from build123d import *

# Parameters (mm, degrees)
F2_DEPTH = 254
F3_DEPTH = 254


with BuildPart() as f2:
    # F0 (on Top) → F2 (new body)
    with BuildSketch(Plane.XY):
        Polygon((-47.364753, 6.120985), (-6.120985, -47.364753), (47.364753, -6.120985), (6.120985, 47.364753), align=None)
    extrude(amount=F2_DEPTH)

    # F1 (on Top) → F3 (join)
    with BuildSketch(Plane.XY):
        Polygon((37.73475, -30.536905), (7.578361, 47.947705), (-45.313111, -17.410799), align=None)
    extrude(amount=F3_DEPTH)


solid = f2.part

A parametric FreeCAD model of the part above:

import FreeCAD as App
import Part
import Sketcher
Q = App.Units.Quantity

doc = App.newDocument("Part")
body = doc.addObject("PartDesign::Body", "Body")

# Sketch on XY plane
sketch1 = doc.addObject("Sketcher::SketchObject", "Sketch")
body.addObject(sketch1)
sketch1.AttachmentSupport = (doc.XY_Plane, [""])
sketch1.MapMode = "FlatFace"
sketch1.addGeometry(Part.LineSegment(App.Vector(-47, 6, 0), App.Vector(-6, -47, 0)), False)
sketch1.addGeometry(Part.LineSegment(App.Vector(-6, -47, 0), App.Vector(47, -6, 0)), False)
sketch1.addGeometry(Part.LineSegment(App.Vector(47, -6, 0), App.Vector(6, 47, 0)), False)
sketch1.addGeometry(Part.LineSegment(App.Vector(6, 47, 0), App.Vector(-47, 6, 0)), False)
sketch1.addConstraint(Sketcher.Constraint("Coincident", 0, 2, 1, 1))
sketch1.addConstraint(Sketcher.Constraint("Coincident", 1, 2, 2, 1))
sketch1.addConstraint(Sketcher.Constraint("Coincident", 2, 2, 3, 1))
sketch1.addConstraint(Sketcher.Constraint("Coincident", 3, 2, 0, 1))
sketch1.addConstraint(Sketcher.Constraint("Symmetric", 0, 2, 2, 2, -1, 1))
sketch1.addConstraint(Sketcher.Constraint("Symmetric", 1, 2, 3, 2, -1, 1))
sketch1.addConstraint(Sketcher.Constraint("Perpendicular", 0, 1))
sketch1.addConstraint(Sketcher.Constraint("Equal", 0, 1))
sketch1.addConstraint(Sketcher.Constraint("DistanceY", 0, 2, 1, 2, Q("41.243768 mm")))
sketch1.addConstraint(Sketcher.Constraint("DistanceX", 0, 2, 2, 2, Q("12.24197 mm")))
pad1 = doc.addObject("PartDesign::Pad", "Pad")
body.addObject(pad1)
pad1.Profile = sketch1
pad1.Length = Q("10 in")

# Sketch on XY plane
sketch2 = doc.addObject("Sketcher::SketchObject", "Sketch001")
body.addObject(sketch2)
sketch2.AttachmentSupport = (doc.XY_Plane, [""])
sketch2.MapMode = "FlatFace"
sketch2.addGeometry(Part.LineSegment(App.Vector(38, -31, 0), App.Vector(8, 48, 0)), False)
sketch2.addGeometry(Part.LineSegment(App.Vector(8, 48, 0), App.Vector(-45, -17, 0)), False)
sketch2.addGeometry(Part.LineSegment(App.Vector(-45, -17, 0), App.Vector(38, -31, 0)), False)
sketch2.addConstraint(Sketcher.Constraint("Coincident", 0, 2, 1, 1))
sketch2.addConstraint(Sketcher.Constraint("Coincident", 1, 2, 2, 1))
sketch2.addConstraint(Sketcher.Constraint("Coincident", 2, 2, 0, 1))
sketch2.addConstraint(Sketcher.Constraint("Equal", 0, 1))
sketch2.addConstraint(Sketcher.Constraint("Equal", 1, 2))
sketch2.addConstraint(Sketcher.Constraint("DistanceY", 1, 2, -1, 1, Q("17.410799 mm")))
sketch2.addConstraint(Sketcher.Constraint("DistanceX", -1, 1, 0, 2, Q("7.578361 mm")))
sketch2.addConstraint(Sketcher.Constraint("DistanceX", 1, 2, -1, 1, Q("45.313111 mm")))
sketch2.addConstraint(Sketcher.Constraint("DistanceX", -1, 1, 2, 2, Q("37.73475 mm")))
pad2 = doc.addObject("PartDesign::Pad", "Pad001")
body.addObject(pad2)
pad2.Profile = sketch2
pad2.Length = Q("10 in")

doc.recompute()
